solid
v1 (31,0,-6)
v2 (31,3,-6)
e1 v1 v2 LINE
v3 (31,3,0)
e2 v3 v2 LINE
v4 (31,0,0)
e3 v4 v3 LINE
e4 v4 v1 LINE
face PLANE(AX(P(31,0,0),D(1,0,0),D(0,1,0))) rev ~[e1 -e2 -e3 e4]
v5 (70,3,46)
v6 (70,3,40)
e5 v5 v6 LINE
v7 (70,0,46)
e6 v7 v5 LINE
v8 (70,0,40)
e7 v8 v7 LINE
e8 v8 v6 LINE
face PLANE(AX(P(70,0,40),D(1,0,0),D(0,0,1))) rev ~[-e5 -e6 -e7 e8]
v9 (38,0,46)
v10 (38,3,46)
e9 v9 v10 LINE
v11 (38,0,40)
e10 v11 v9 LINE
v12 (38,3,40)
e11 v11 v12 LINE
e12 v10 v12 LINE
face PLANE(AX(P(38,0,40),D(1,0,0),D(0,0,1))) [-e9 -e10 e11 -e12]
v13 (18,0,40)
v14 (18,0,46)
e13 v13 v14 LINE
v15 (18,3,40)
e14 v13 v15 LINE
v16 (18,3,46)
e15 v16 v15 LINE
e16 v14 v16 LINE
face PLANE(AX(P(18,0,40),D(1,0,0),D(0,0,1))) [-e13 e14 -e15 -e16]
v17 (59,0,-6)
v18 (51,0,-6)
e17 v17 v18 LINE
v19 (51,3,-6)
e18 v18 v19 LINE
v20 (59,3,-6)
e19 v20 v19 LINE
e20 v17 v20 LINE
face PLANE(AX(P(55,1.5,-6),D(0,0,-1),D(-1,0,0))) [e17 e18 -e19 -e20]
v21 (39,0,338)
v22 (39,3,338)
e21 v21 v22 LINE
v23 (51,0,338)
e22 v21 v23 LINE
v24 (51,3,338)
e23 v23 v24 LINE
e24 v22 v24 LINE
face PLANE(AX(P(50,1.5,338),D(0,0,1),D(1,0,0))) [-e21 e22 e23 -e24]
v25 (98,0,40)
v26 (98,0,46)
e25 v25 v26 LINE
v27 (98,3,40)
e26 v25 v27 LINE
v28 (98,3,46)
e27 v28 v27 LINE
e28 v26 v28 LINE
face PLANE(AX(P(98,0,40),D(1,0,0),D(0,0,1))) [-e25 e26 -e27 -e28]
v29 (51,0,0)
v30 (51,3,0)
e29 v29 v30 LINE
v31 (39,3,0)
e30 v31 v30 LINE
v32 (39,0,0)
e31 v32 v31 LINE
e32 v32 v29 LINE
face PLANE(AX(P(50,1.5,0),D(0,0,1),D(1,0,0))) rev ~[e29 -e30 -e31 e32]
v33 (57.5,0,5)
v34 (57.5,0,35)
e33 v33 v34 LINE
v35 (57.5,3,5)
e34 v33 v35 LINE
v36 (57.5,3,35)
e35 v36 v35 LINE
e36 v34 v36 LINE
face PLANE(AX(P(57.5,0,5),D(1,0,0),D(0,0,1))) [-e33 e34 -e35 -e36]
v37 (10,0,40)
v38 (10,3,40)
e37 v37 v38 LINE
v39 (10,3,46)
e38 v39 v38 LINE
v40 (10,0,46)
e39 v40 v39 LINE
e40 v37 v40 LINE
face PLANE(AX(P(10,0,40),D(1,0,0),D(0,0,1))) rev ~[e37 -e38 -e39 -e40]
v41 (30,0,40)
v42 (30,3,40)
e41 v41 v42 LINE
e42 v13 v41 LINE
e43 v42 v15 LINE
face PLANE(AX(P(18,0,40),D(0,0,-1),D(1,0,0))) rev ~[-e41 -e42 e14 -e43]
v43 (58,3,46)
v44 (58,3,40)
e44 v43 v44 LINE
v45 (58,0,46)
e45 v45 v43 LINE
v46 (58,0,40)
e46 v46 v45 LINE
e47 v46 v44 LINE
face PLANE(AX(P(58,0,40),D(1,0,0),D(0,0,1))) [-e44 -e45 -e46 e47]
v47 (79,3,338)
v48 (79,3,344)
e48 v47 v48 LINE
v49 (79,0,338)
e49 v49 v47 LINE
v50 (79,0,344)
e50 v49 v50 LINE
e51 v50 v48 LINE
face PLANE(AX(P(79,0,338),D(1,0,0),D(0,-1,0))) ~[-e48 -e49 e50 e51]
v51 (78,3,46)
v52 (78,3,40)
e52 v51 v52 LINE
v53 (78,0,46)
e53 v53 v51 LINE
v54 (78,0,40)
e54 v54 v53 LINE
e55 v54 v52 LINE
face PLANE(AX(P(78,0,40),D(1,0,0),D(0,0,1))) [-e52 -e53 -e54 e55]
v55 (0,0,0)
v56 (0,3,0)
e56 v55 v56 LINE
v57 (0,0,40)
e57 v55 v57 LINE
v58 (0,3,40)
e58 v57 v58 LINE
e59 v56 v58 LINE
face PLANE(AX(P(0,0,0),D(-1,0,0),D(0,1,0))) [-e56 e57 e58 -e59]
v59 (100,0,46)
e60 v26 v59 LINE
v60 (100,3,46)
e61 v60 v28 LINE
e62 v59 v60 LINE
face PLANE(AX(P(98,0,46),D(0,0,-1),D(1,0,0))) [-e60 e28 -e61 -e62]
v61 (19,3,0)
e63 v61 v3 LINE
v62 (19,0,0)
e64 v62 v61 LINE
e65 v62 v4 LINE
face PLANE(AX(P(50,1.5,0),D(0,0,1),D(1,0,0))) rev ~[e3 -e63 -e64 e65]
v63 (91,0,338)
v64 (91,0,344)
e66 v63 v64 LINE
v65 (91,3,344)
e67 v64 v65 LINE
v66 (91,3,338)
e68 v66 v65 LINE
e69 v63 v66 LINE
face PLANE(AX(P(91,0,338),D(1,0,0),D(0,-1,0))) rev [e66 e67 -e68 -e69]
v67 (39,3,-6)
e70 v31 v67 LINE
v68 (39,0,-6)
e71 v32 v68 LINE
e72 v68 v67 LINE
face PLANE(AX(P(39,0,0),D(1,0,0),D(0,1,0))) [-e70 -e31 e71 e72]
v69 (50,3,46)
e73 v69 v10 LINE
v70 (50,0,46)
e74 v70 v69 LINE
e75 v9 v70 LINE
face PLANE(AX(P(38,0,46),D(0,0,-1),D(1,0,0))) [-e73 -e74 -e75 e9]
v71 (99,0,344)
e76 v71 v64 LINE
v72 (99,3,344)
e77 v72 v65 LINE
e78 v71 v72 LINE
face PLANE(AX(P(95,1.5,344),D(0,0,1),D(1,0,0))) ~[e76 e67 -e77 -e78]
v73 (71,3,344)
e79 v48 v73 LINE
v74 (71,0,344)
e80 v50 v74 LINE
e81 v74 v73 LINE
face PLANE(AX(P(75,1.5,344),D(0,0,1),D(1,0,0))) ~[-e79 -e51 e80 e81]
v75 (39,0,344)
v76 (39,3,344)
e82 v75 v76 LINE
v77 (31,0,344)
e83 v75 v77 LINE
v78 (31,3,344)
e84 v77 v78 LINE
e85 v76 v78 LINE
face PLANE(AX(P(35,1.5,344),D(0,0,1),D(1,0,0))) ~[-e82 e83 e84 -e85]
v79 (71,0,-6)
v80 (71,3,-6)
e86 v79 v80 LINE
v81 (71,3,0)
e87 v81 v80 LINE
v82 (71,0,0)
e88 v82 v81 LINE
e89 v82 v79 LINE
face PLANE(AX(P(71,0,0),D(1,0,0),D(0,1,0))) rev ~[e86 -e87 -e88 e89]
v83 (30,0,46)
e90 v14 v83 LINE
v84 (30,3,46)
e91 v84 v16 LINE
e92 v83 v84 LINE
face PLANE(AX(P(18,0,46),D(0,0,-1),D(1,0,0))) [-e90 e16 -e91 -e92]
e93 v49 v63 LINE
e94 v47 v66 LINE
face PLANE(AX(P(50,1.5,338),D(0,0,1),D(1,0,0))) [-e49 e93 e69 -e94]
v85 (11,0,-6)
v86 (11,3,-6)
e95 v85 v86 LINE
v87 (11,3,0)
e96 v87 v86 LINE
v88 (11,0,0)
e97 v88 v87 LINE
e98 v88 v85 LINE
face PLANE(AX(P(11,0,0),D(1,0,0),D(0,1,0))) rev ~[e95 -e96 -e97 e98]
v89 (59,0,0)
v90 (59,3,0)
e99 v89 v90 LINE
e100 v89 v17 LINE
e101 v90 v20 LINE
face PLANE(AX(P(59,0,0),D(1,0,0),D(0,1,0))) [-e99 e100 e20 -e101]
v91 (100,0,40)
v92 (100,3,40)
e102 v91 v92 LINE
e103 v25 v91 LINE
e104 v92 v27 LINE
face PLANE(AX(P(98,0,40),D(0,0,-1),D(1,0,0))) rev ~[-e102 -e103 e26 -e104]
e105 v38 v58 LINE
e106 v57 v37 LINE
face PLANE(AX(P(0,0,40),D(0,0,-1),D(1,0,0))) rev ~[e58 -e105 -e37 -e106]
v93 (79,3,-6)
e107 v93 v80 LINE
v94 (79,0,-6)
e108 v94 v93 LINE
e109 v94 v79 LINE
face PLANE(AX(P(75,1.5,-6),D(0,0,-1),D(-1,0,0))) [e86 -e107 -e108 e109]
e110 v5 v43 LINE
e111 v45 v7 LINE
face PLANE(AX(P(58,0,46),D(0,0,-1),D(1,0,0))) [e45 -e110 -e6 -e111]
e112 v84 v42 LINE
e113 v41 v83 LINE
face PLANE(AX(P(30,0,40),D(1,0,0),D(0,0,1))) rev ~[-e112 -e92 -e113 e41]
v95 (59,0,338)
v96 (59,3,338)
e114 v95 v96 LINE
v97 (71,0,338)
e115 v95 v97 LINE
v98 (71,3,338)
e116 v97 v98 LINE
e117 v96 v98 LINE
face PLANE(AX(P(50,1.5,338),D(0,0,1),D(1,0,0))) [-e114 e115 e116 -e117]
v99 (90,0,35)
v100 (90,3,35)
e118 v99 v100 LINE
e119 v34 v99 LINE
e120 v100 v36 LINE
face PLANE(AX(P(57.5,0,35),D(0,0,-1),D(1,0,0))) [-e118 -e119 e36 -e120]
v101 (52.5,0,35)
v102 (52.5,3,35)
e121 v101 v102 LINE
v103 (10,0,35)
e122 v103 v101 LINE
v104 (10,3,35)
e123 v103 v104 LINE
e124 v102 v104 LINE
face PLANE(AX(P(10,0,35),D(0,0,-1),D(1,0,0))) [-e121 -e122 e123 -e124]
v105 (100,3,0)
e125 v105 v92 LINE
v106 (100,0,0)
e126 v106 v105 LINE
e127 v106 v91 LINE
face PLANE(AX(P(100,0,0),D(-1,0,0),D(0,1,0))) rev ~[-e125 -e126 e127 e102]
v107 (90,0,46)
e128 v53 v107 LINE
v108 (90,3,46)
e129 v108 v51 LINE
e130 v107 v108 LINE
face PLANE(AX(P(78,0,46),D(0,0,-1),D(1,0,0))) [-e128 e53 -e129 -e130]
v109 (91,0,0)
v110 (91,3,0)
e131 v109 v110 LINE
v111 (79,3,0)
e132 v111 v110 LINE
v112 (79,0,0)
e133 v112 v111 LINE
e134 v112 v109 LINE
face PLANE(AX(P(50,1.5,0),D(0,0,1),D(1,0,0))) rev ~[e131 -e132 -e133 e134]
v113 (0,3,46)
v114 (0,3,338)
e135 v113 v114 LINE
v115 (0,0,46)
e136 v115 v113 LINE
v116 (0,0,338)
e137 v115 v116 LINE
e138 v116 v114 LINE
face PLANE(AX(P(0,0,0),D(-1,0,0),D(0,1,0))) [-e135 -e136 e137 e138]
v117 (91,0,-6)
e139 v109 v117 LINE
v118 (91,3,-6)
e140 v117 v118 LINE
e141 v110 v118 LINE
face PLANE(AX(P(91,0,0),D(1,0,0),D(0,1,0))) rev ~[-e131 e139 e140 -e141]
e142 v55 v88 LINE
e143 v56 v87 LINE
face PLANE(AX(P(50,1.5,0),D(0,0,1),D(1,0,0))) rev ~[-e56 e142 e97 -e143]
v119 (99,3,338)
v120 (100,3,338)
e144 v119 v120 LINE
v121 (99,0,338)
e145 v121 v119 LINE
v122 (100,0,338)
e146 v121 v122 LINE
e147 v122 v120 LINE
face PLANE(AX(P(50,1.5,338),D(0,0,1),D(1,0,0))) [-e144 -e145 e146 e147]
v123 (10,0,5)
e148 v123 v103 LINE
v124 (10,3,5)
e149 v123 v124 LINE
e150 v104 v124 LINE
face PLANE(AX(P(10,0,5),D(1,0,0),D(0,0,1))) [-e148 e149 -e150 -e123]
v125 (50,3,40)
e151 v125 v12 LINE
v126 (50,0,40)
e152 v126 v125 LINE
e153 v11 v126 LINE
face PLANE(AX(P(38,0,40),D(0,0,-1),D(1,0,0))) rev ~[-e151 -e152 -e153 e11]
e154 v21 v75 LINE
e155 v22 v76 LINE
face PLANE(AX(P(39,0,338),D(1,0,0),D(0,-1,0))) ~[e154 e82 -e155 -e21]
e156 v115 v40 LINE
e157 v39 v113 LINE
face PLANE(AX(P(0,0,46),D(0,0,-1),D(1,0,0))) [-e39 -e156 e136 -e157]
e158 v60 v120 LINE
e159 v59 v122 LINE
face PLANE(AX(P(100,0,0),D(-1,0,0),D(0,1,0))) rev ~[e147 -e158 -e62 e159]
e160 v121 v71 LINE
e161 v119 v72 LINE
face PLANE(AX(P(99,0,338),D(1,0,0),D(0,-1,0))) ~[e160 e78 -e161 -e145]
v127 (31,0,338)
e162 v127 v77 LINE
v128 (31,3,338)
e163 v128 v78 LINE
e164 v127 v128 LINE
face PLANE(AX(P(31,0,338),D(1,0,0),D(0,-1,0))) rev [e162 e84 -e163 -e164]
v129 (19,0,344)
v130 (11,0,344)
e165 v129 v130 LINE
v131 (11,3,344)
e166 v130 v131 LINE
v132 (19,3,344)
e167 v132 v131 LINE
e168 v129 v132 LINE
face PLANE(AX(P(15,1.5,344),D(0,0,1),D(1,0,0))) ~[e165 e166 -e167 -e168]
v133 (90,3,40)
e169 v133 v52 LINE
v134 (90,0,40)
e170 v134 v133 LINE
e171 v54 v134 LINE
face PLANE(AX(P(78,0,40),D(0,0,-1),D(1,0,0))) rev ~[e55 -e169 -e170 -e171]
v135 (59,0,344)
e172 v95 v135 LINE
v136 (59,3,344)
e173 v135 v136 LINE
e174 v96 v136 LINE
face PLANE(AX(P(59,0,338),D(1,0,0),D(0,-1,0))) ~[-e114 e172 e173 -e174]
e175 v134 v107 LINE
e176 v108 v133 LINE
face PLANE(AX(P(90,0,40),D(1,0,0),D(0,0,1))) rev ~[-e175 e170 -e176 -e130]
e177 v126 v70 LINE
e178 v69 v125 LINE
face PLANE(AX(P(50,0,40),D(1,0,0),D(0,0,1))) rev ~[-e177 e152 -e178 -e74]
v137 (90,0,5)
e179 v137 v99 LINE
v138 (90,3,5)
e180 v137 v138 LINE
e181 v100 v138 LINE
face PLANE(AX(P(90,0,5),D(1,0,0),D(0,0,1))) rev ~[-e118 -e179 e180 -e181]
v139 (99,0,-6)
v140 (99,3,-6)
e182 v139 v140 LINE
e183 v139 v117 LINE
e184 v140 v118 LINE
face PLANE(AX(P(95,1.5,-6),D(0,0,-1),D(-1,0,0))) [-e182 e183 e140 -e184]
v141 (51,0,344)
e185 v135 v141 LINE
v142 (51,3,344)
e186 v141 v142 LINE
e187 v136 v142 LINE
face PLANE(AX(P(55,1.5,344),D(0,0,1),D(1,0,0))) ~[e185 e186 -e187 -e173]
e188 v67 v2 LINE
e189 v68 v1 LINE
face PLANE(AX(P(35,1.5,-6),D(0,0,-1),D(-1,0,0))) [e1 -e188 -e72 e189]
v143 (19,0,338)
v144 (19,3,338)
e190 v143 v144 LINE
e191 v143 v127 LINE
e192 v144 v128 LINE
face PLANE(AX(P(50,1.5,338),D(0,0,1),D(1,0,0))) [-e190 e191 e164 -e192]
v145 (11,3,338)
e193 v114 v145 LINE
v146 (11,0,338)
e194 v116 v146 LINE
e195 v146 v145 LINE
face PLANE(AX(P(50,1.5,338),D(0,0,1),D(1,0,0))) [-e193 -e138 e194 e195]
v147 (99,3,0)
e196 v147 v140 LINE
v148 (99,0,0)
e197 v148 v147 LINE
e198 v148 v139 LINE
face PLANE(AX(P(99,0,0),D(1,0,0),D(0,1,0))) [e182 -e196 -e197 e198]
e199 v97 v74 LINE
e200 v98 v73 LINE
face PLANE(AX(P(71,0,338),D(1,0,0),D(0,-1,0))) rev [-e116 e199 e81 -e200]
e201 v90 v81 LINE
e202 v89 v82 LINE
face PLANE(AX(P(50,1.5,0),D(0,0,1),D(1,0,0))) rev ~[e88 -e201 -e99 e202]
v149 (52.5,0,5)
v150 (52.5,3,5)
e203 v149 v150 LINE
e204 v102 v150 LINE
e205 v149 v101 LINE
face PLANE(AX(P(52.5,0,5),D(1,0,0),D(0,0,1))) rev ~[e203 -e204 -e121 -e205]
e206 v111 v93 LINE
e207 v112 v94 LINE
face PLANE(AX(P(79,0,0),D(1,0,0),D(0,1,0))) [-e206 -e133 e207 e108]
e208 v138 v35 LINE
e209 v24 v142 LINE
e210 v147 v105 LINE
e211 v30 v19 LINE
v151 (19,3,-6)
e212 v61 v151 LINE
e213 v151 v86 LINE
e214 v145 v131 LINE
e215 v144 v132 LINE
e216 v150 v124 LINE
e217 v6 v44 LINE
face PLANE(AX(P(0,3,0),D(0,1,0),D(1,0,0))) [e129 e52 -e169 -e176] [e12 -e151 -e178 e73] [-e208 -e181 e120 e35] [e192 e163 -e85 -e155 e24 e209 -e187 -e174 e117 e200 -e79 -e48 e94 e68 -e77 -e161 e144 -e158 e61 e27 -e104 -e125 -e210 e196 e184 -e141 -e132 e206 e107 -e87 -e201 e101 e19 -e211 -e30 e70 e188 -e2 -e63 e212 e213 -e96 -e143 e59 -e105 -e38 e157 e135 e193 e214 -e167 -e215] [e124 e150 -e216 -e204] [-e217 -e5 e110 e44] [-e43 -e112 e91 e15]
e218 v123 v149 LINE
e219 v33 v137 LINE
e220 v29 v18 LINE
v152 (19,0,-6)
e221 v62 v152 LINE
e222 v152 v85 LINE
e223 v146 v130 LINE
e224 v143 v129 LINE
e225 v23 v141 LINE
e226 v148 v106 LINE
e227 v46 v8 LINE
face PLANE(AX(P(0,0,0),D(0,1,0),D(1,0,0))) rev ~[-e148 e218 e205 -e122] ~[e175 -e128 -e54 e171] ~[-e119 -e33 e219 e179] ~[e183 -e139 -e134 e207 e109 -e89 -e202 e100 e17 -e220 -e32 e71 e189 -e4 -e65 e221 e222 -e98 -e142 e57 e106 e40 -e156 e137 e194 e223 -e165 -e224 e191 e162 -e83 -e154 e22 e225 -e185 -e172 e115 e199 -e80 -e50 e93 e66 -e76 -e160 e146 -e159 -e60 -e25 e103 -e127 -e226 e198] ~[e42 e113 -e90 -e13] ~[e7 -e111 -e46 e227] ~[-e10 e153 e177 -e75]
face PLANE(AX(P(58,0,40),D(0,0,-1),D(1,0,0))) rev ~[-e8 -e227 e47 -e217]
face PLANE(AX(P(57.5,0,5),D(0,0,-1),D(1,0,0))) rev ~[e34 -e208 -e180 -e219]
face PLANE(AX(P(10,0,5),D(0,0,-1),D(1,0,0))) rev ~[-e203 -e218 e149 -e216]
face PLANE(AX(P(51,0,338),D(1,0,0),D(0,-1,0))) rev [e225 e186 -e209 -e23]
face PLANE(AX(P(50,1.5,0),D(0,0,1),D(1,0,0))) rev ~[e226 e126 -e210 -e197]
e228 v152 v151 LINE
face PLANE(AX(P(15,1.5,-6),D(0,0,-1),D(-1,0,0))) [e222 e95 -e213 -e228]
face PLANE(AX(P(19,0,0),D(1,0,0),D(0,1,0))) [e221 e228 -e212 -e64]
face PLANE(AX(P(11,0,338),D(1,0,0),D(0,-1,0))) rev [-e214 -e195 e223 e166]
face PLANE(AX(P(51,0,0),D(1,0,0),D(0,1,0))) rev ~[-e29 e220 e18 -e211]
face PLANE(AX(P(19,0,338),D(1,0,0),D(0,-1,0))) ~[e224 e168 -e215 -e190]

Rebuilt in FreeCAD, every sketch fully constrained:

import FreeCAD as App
import Part
import Sketcher


def add_polygon(sketch, points):
    """Adds a closed chain of lines whose ends are joined by coincident constraints."""
    first, n = sketch.GeometryCount, len(points)
    for a, b in zip(points, points[1:] + points[:1]):
        sketch.addGeometry(Part.LineSegment(App.Vector(*a, 0), App.Vector(*b, 0)), False)
    for i in range(n):
        sketch.addConstraint(Sketcher.Constraint("Coincident", first + i, 2, first + (i + 1) % n, 1))

doc = App.newDocument("Part")
body = doc.addObject("PartDesign::Body", "Body")

# Sketch on XY plane
sketch1 = body.newObject("Sketcher::SketchObject", "Sketch")
sketch1.AttachmentSupport = (doc.getObject("XY_Plane"), [""])
sketch1.MapMode = "FlatFace"
add_polygon(sketch1, [(0, 3), (0, 0), (100, 0), (100, 3)])  # lines 0-3
sketch1.addConstraint(Sketcher.Constraint("Vertical", 0))
sketch1.addConstraint(Sketcher.Constraint("Horizontal", 1))
sketch1.addConstraint(Sketcher.Constraint("Vertical", 2))
sketch1.addConstraint(Sketcher.Constraint("Horizontal", 3))
sketch1.addConstraint(Sketcher.Constraint("Coincident", 0, 2, -1, 1))
sketch1.addConstraint(Sketcher.Constraint("DistanceX", 1, 1, 1, 2, 100.0))
sketch1.addConstraint(Sketcher.Constraint("DistanceY", 0, 2, 0, 1, 3.0))
pad1 = body.newObject("PartDesign::Pad", "Pad")
pad1.Profile = sketch1
pad1.Length = 338

# Sketch on XZ plane
sketch2 = body.newObject("Sketcher::SketchObject", "Sketch001")
sketch2.AttachmentSupport = (doc.getObject("XZ_Plane"), [""])
sketch2.MapMode = "FlatFace"
add_polygon(sketch2, [(38, 46), (38, 40), (50, 40), (50, 46)])  # lines 0-3
add_polygon(sketch2, [(18, 46), (18, 40), (30, 40), (30, 46)])  # lines 4-7
add_polygon(sketch2, [(58, 46), (58, 40), (70, 40), (70, 46)])  # lines 8-11
add_polygon(sketch2, [(78, 46), (78, 40), (90, 40), (90, 46)])  # lines 12-15
add_polygon(sketch2, [(98, 46), (98, 40), (100, 40), (100, 46)])  # lines 16-19
add_polygon(sketch2, [(0, 46), (0, 40), (10, 40), (10, 46)])  # lines 20-23
sketch2.addConstraint(Sketcher.Constraint("Vertical", 0))
sketch2.addConstraint(Sketcher.Constraint("Horizontal", 1))
sketch2.addConstraint(Sketcher.Constraint("Vertical", 2))
sketch2.addConstraint(Sketcher.Constraint("Horizontal", 3))
sketch2.addConstraint(Sketcher.Constraint("Vertical", 4))
sketch2.addConstraint(Sketcher.Constraint("Horizontal", 5))
sketch2.addConstraint(Sketcher.Constraint("Vertical", 6))
sketch2.addConstraint(Sketcher.Constraint("Horizontal", 7))
sketch2.addConstraint(Sketcher.Constraint("Vertical", 8))
sketch2.addConstraint(Sketcher.Constraint("Horizontal", 9))
sketch2.addConstraint(Sketcher.Constraint("Vertical", 10))
sketch2.addConstraint(Sketcher.Constraint("Horizontal", 11))
sketch2.addConstraint(Sketcher.Constraint("Vertical", 12))
sketch2.addConstraint(Sketcher.Constraint("Horizontal", 13))
sketch2.addConstraint(Sketcher.Constraint("Vertical", 14))
sketch2.addConstraint(Sketcher.Constraint("Horizontal", 15))
sketch2.addConstraint(Sketcher.Constraint("Vertical", 16))
sketch2.addConstraint(Sketcher.Constraint("Horizontal", 17))
sketch2.addConstraint(Sketcher.Constraint("Vertical", 18))
sketch2.addConstraint(Sketcher.Constraint("Horizontal", 19))
sketch2.addConstraint(Sketcher.Constraint("Vertical", 20))
sketch2.addConstraint(Sketcher.Constraint("Horizontal", 21))
sketch2.addConstraint(Sketcher.Constraint("Vertical", 22))
sketch2.addConstraint(Sketcher.Constraint("Horizontal", 23))
sketch2.addConstraint(Sketcher.Constraint("PointOnObject", 20, 2, -2))
sketch2.addConstraint(Sketcher.Constraint("Horizontal", 1, 2, 4, 2))
sketch2.addConstraint(Sketcher.Constraint("Horizontal", 3, 2, 6, 2))
sketch2.addConstraint(Sketcher.Constraint("Horizontal", 5, 2, 8, 2))
sketch2.addConstraint(Sketcher.Constraint("Horizontal", 7, 2, 10, 2))
sketch2.addConstraint(Sketcher.Constraint("Horizontal", 9, 2, 12, 2))
sketch2.addConstraint(Sketcher.Constraint("Horizontal", 11, 2, 14, 2))
sketch2.addConstraint(Sketcher.Constraint("Horizontal", 13, 2, 16, 2))
sketch2.addConstraint(Sketcher.Constraint("Horizontal", 15, 2, 18, 2))
sketch2.addConstraint(Sketcher.Constraint("Horizontal", 17, 2, 20, 2))
sketch2.addConstraint(Sketcher.Constraint("Horizontal", 19, 2, 22, 2))
sketch2.addConstraint(Sketcher.Constraint("Equal", 3, 5))
sketch2.addConstraint(Sketcher.Constraint("Equal", 7, 9))
sketch2.addConstraint(Sketcher.Constraint("Equal", 11, 13))
sketch2.addConstraint(Sketcher.Constraint("DistanceX", 1, 1, 1, 2, 12.0))
sketch2.addConstraint(Sketcher.Constraint("DistanceX", 17, 1, 17, 2, 2.0))
sketch2.addConstraint(Sketcher.Constraint("DistanceX", 21, 1, 21, 2, 10.0))
sketch2.addConstraint(Sketcher.Constraint("DistanceY", 0, 2, 0, 1, 6.0))
sketch2.addConstraint(Sketcher.Constraint("DistanceX", -1, 1, 0, 2, 38.0))
sketch2.addConstraint(Sketcher.Constraint("DistanceY", -1, 1, 0, 2, 40.0))
sketch2.addConstraint(Sketcher.Constraint("DistanceX", -1, 1, 4, 2, 18.0))
sketch2.addConstraint(Sketcher.Constraint("DistanceX", -1, 1, 8, 2, 58.0))
sketch2.addConstraint(Sketcher.Constraint("DistanceX", -1, 1, 12, 2, 78.0))
sketch2.addConstraint(Sketcher.Constraint("DistanceX", -1, 1, 16, 2, 98.0))
pocket1 = body.newObject("PartDesign::Pocket", "Pocket")
pocket1.Profile = sketch2
pocket1.Length = 6

# Sketch on XY plane
sketch3 = body.newObject("Sketcher::SketchObject", "Sketch002")
sketch3.AttachmentSupport = (doc.getObject("XY_Plane"), [""])
sketch3.MapMode = "FlatFace"
add_polygon(sketch3, [(19, 3), (19, 0), (11, 0), (11, 3)])  # lines 0-3
add_polygon(sketch3, [(39, 3), (39, 0), (31, 0), (31, 3)])  # lines 4-7
add_polygon(sketch3, [(59, 3), (59, 0), (51, 0), (51, 3)])  # lines 8-11
add_polygon(sketch3, [(79, 3), (79, 0), (71, 0), (71, 3)])  # lines 12-15
add_polygon(sketch3, [(99, 3), (99, 0), (91, 0), (91, 3)])  # lines 16-19
sketch3.addConstraint(Sketcher.Constraint("Vertical", 0))
sketch3.addConstraint(Sketcher.Constraint("Horizontal", 1))
sketch3.addConstraint(Sketcher.Constraint("Vertical", 2))
sketch3.addConstraint(Sketcher.Constraint("Horizontal", 3))
sketch3.addConstraint(Sketcher.Constraint("Vertical", 4))
sketch3.addConstraint(Sketcher.Constraint("Horizontal", 5))
sketch3.addConstraint(Sketcher.Constraint("Vertical", 6))
sketch3.addConstraint(Sketcher.Constraint("Horizontal", 7))
sketch3.addConstraint(Sketcher.Constraint("Vertical", 8))
sketch3.addConstraint(Sketcher.Constraint("Horizontal", 9))
sketch3.addConstraint(Sketcher.Constraint("Vertical", 10))
sketch3.addConstraint(Sketcher.Constraint("Horizontal", 11))
sketch3.addConstraint(Sketcher.Constraint("Vertical", 12))
sketch3.addConstraint(Sketcher.Constraint("Horizontal", 13))
sketch3.addConstraint(Sketcher.Constraint("Vertical", 14))
sketch3.addConstraint(Sketcher.Constraint("Horizontal", 15))
sketch3.addConstraint(Sketcher.Constraint("Vertical", 16))
sketch3.addConstraint(Sketcher.Constraint("Horizontal", 17))
sketch3.addConstraint(Sketcher.Constraint("Vertical", 18))
sketch3.addConstraint(Sketcher.Constraint("Horizontal", 19))
sketch3.addConstraint(Sketcher.Constraint("PointOnObject", 0, 2, -1))
sketch3.addConstraint(Sketcher.Constraint("PointOnObject", 4, 2, -1))
sketch3.addConstraint(Sketcher.Constraint("PointOnObject", 8, 2, -1))
sketch3.addConstraint(Sketcher.Constraint("PointOnObject", 12, 2, -1))
sketch3.addConstraint(Sketcher.Constraint("PointOnObject", 16, 2, -1))
sketch3.addConstraint(Sketcher.Constraint("Horizontal", 3, 2, 6, 2))
sketch3.addConstraint(Sketcher.Constraint("Horizontal", 7, 2, 10, 2))
sketch3.addConstraint(Sketcher.Constraint("Horizontal", 11, 2, 14, 2))
sketch3.addConstraint(Sketcher.Constraint("Horizontal", 15, 2, 18, 2))
sketch3.addConstraint(Sketcher.Constraint("Equal", 3, 5))
sketch3.addConstraint(Sketcher.Constraint("Equal", 7, 9))
sketch3.addConstraint(Sketcher.Constraint("Equal", 11, 13))
sketch3.addConstraint(Sketcher.Constraint("Equal", 15, 17))
sketch3.addConstraint(Sketcher.Constraint("DistanceX", 1, 2, 1, 1, 8.0))
sketch3.addConstraint(Sketcher.Constraint("DistanceY", 0, 2, 0, 1, 3.0))
sketch3.addConstraint(Sketcher.Constraint("DistanceX", -1, 1, 0, 2, 19.0))
sketch3.addConstraint(Sketcher.Constraint("DistanceX", -1, 1, 4, 2, 39.0))
sketch3.addConstraint(Sketcher.Constraint("DistanceX", -1, 1, 8, 2, 59.0))
sketch3.addConstraint(Sketcher.Constraint("DistanceX", -1, 1, 12, 2, 79.0))
sketch3.addConstraint(Sketcher.Constraint("DistanceX", -1, 1, 16, 2, 99.0))
pad2 = body.newObject("PartDesign::Pad", "Pad001")
pad2.Profile = sketch3
pad2.Length = 6
pad2.Reversed = True
doc.recompute()

datumplane = body.newObject("PartDesign::Plane", "DatumPlane")
datumplane.AttachmentSupport = (doc.getObject("XY_Plane"), [""])
datumplane.MapMode = "FlatFace"
datumplane.AttachmentOffset = App.Placement(App.Vector(0, 0, 169), App.Rotation())
mirrored = body.newObject("PartDesign::Mirrored", "Mirrored")
mirrored.Originals = [pad2]
mirrored.MirrorPlane = (datumplane, [""])
body.Tip = mirrored

# Sketch on XZ plane
sketch4 = body.newObject("Sketcher::SketchObject", "Sketch003")
sketch4.AttachmentSupport = (doc.getObject("XZ_Plane"), [""])
sketch4.MapMode = "FlatFace"
add_polygon(sketch4, [(10, 35), (10, 5), (52, 5), (52, 35)])  # lines 0-3
add_polygon(sketch4, [(58, 35), (58, 5), (90, 5), (90, 35)])  # lines 4-7
sketch4.addConstraint(Sketcher.Constraint("Vertical", 0))
sketch4.addConstraint(Sketcher.Constraint("Horizontal", 1))
sketch4.addConstraint(Sketcher.Constraint("Vertical", 2))
sketch4.addConstraint(Sketcher.Constraint("Horizontal", 3))
sketch4.addConstraint(Sketcher.Constraint("Vertical", 4))
sketch4.addConstraint(Sketcher.Constraint("Horizontal", 5))
sketch4.addConstraint(Sketcher.Constraint("Vertical", 6))
sketch4.addConstraint(Sketcher.Constraint("Horizontal", 7))
sketch4.addConstraint(Sketcher.Constraint("Horizontal", 1, 2, 4, 2))
sketch4.addConstraint(Sketcher.Constraint("Horizontal", 3, 2, 6, 2))
sketch4.addConstraint(Sketcher.Constraint("DistanceY", 0, 2, 0, 1, 30.0))
sketch4.addConstraint(Sketcher.Constraint("DistanceX", 1, 1, 1, 2, 42.5))
sketch4.addConstraint(Sketcher.Constraint("DistanceX", 5, 1, 5, 2, 32.5))
sketch4.addConstraint(Sketcher.Constraint("DistanceX", -1, 1, 0, 2, 10.0))
sketch4.addConstraint(Sketcher.Constraint("DistanceY", -1, 1, 0, 2, 5.0))
sketch4.addConstraint(Sketcher.Constraint("DistanceX", -1, 1, 5, 2, 90.0))
pocket2 = body.newObject("PartDesign::Pocket", "Pocket001")
pocket2.Profile = sketch4
pocket2.Length = 10

doc.recompute()
